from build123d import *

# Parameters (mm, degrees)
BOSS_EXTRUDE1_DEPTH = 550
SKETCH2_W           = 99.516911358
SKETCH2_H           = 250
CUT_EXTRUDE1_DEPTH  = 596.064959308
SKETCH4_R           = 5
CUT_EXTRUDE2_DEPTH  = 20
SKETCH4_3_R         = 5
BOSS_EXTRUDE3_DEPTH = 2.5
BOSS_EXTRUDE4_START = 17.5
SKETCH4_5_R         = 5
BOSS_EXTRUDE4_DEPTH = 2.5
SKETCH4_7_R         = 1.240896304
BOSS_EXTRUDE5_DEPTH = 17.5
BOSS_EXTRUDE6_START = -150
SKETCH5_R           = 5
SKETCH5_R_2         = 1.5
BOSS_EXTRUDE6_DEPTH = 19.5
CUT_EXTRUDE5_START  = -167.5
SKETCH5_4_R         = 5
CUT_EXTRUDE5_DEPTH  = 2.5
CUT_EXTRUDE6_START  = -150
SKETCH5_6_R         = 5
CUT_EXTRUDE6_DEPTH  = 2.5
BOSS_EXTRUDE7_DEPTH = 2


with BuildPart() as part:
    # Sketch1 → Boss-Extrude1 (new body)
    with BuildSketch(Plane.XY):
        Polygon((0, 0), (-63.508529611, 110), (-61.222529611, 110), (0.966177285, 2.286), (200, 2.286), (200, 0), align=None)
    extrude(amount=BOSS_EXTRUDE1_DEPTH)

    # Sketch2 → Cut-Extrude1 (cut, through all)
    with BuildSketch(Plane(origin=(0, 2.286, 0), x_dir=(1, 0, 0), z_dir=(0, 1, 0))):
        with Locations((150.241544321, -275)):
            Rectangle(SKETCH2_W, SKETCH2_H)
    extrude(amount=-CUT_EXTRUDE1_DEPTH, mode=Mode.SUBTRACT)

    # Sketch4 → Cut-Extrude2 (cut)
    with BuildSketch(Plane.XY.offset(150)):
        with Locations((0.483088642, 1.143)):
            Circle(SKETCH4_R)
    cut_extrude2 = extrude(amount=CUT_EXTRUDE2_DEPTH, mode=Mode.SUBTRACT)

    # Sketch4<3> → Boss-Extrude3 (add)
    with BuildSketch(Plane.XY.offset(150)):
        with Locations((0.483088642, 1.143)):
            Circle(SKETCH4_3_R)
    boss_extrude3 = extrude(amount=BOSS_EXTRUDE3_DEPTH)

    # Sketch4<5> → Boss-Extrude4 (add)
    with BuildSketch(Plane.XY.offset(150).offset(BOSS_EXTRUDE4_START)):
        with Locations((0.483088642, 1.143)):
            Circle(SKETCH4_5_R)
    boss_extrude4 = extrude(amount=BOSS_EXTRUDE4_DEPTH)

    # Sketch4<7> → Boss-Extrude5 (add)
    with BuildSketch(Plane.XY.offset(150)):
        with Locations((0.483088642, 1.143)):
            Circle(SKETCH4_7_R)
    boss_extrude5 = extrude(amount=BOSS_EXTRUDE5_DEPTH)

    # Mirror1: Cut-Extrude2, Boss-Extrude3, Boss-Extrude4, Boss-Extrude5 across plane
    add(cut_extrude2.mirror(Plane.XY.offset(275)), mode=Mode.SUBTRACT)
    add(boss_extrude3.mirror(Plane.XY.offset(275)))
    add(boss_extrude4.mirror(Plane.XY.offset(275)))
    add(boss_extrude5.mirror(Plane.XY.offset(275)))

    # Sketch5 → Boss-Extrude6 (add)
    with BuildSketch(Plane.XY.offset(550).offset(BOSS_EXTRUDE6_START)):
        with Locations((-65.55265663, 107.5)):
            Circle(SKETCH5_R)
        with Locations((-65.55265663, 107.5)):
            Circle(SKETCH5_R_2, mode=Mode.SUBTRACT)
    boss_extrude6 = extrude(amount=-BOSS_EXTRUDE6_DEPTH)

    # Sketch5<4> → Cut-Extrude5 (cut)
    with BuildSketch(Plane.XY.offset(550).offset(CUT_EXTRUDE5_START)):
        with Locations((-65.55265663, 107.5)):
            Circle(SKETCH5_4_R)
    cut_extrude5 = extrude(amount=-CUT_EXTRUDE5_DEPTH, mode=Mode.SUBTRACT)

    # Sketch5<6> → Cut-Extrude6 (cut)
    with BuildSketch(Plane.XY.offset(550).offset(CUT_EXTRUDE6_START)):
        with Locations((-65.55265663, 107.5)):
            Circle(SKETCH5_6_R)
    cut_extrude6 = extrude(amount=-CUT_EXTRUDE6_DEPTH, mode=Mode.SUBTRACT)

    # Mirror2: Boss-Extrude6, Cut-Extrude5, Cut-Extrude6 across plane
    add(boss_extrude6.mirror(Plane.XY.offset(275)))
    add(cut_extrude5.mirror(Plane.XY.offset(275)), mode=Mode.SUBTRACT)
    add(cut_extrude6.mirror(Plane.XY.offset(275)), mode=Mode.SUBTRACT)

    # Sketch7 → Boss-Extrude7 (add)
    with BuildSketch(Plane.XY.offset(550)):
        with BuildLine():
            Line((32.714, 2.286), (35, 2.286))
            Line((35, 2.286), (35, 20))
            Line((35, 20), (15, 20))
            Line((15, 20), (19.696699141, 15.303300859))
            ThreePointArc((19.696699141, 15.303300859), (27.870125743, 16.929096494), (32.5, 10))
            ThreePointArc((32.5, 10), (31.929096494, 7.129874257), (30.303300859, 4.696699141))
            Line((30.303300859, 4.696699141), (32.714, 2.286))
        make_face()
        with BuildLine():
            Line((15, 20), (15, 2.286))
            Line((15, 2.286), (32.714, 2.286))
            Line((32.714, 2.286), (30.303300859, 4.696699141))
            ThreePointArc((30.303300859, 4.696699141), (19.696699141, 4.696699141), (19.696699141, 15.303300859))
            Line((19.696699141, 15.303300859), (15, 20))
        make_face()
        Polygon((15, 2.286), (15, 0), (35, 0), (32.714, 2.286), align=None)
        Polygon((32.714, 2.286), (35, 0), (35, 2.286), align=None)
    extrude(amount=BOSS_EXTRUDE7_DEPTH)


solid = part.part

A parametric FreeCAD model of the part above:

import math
import FreeCAD as App
import Part
import Sketcher
Q = App.Units.Quantity


def add_polygon(sketch, points):
    """Adds a closed chain of lines whose ends are joined by coincident constraints."""
    first, n = sketch.GeometryCount, len(points)
    for a, b in zip(points, points[1:] + points[:1]):
        sketch.addGeometry(Part.LineSegment(App.Vector(*a, 0), App.Vector(*b, 0)), False)
    for i in range(n):
        sketch.addConstraint(Sketcher.Constraint("Coincident", first + i, 2, first + (i + 1) % n, 1))

doc = App.newDocument("Part")
body = doc.addObject("PartDesign::Body", "Body")

# Sketch on XY plane
sketch1 = doc.addObject("Sketcher::SketchObject", "Sketch")
body.addObject(sketch1)
sketch1.AttachmentSupport = (doc.XY_Plane, [""])
sketch1.MapMode = "FlatFace"
add_polygon(sketch1, [(-63.5, 110), (0, 0), (200, 0), (200, 2.3), (1, 2.3), (-61.2, 110)])  # lines 0-5
sketch1.addConstraint([
    Sketcher.Constraint("Horizontal", 1),
    Sketcher.Constraint("Vertical", 2),
    Sketcher.Constraint("Horizontal", 3),
    Sketcher.Constraint("Horizontal", 5),
    Sketcher.Constraint("Coincident", 0, 2, -1, 1),
    Sketcher.Constraint("Parallel", 0, 4),
    Sketcher.Constraint("Equal", 5, 2),
    Sketcher.Constraint("DistanceX", 1, 1, 1, 2, 200.0),
    Sketcher.Constraint("Angle", 0, Q("-60 deg")),
    Sketcher.Constraint("DistanceY", -1, 1, 4, 2, 110.0),
    Sketcher.Constraint("DistanceX", 5, 2, 5, 1, 2.286),
])
pad1 = doc.addObject("PartDesign::Pad", "Pad")
body.addObject(pad1)
pad1.Profile = sketch1
pad1.Length = 550

# Sketch on XZ plane
sketch2 = doc.addObject("Sketcher::SketchObject", "Sketch001")
body.addObject(sketch2)
sketch2.AttachmentSupport = (doc.XZ_Plane, [""])
sketch2.MapMode = "FlatFace"
sketch2.AttachmentOffset = App.Placement(App.Vector(0, 0, -2.286), App.Rotation())
add_polygon(sketch2, [(100, 150), (100, 400), (200, 400), (200, 150)])  # lines 0-3
sketch2.addConstraint([
    Sketcher.Constraint("Vertical", 0),
    Sketcher.Constraint("Horizontal", 1),
    Sketcher.Constraint("Vertical", 2),
    Sketcher.Constraint("Horizontal", 3),
    Sketcher.Constraint("DistanceY", 0, 1, 0, 2, 250.0),
    Sketcher.Constraint("DistanceY", -1, 1, 0, 2, 400.0),
    Sketcher.Constraint("DistanceX", -1, 1, 1, 2, 200.0),
    Sketcher.Constraint("DistanceX", 1, 1, 1, 2, 99.516911),
])
pocket1 = doc.addObject("PartDesign::Pocket", "Pocket")
body.addObject(pocket1)
pocket1.Profile = sketch2
pocket1.Type = "ThroughAll"
pocket1.Reversed = True

# Sketch on XY plane
sketch3 = doc.addObject("Sketcher::SketchObject", "Sketch002")
body.addObject(sketch3)
sketch3.AttachmentSupport = (doc.XY_Plane, [""])
sketch3.MapMode = "FlatFace"
sketch3.AttachmentOffset = App.Placement(App.Vector(0, 0, 150), App.Rotation())
sketch3.addGeometry(Part.Circle(App.Vector(0, 1, 0), App.Vector(0, 0, 1), 5), False)
sketch3.addConstraint([
    Sketcher.Constraint("Diameter", 0, 10.0),
    Sketcher.Constraint("DistanceY", -1, 1, 0, 3, 1.143),
    Sketcher.Constraint("DistanceX", -1, 1, 0, 3, 0.483089),
])
pocket2 = doc.addObject("PartDesign::Pocket", "Pocket001")
body.addObject(pocket2)
pocket2.Profile = sketch3
pocket2.Length = 20
pocket2.Reversed = True

# Sketch on XY plane
sketch4 = doc.addObject("Sketcher::SketchObject", "Sketch003")
body.addObject(sketch4)
sketch4.AttachmentSupport = (doc.XY_Plane, [""])
sketch4.MapMode = "FlatFace"
sketch4.AttachmentOffset = App.Placement(App.Vector(0, 0, 150), App.Rotation())
sketch4.addGeometry(Part.Circle(App.Vector(0, 1, 0), App.Vector(0, 0, 1), 5), False)
sketch4.addConstraint([
    Sketcher.Constraint("Diameter", 0, 10.0),
    Sketcher.Constraint("DistanceY", -1, 1, 0, 3, 1.143),
    Sketcher.Constraint("DistanceX", -1, 1, 0, 3, 0.483089),
])
pad2 = doc.addObject("PartDesign::Pad", "Pad001")
body.addObject(pad2)
pad2.Profile = sketch4
pad2.Length = 2.5

# Sketch on XY plane
sketch5 = doc.addObject("Sketcher::SketchObject", "Sketch004")
body.addObject(sketch5)
sketch5.AttachmentSupport = (doc.XY_Plane, [""])
sketch5.MapMode = "FlatFace"
sketch5.AttachmentOffset = App.Placement(App.Vector(0, 0, 167.5), App.Rotation())
sketch5.addGeometry(Part.Circle(App.Vector(0, 1, 0), App.Vector(0, 0, 1), 5), False)
sketch5.addConstraint([
    Sketcher.Constraint("Diameter", 0, 10.0),
    Sketcher.Constraint("DistanceY", -1, 1, 0, 3, 1.143),
    Sketcher.Constraint("DistanceX", -1, 1, 0, 3, 0.483089),
])
pad3 = doc.addObject("PartDesign::Pad", "Pad002")
body.addObject(pad3)
pad3.Profile = sketch5
pad3.Length = 2.5

# Sketch on XY plane
sketch6 = doc.addObject("Sketcher::SketchObject", "Sketch005")
body.addObject(sketch6)
sketch6.AttachmentSupport = (doc.XY_Plane, [""])
sketch6.MapMode = "FlatFace"
sketch6.AttachmentOffset = App.Placement(App.Vector(0, 0, 150), App.Rotation())
sketch6.addGeometry(Part.Circle(App.Vector(0.5, 1.1, 0), App.Vector(0, 0, 1), 1.2), False)
sketch6.addConstraint([
    Sketcher.Constraint("Diameter", 0, 2.481793),
    Sketcher.Constraint("DistanceY", -1, 1, 0, 3, 1.143),
    Sketcher.Constraint("DistanceX", -1, 1, 0, 3, 0.483089),
])
pad4 = doc.addObject("PartDesign::Pad", "Pad003")
body.addObject(pad4)
pad4.Profile = sketch6
pad4.Length = 17.5
doc.recompute()

datumplane = doc.addObject("PartDesign::Plane", "DatumPlane")
body.addObject(datumplane)
datumplane.AttachmentSupport = (doc.XY_Plane, [""])
datumplane.MapMode = "FlatFace"
datumplane.AttachmentOffset = App.Placement(App.Vector(0, 0, 275), App.Rotation())
mirrored = doc.addObject("PartDesign::Mirrored", "Mirrored")
body.addObject(mirrored)
mirrored.Originals = [pocket2, pad2, pad3, pad4]
mirrored.MirrorPlane = (datumplane, [""])
body.Tip = mirrored

# Sketch on XY plane
sketch7 = doc.addObject("Sketcher::SketchObject", "Sketch006")
body.addObject(sketch7)
sketch7.AttachmentSupport = (doc.XY_Plane, [""])
sketch7.MapMode = "FlatFace"
sketch7.AttachmentOffset = App.Placement(App.Vector(0, 0, 400), App.Rotation())
sketch7.addGeometry([
    Part.Circle(App.Vector(-65.6, 107.5, 0), App.Vector(0, 0, 1), 5),
    Part.Circle(App.Vector(-65.6, 107.5, 0), App.Vector(0, 0, 1), 1.5),
], False)
sketch7.addConstraint([
    Sketcher.Constraint("Coincident", 1, 3, 0, 3),
    Sketcher.Constraint("Diameter", 0, 10.0),
    Sketcher.Constraint("Diameter", 1, 3.0),
    Sketcher.Constraint("DistanceY", -1, 1, 0, 3, 107.5),
    Sketcher.Constraint("DistanceX", 0, 3, -1, 1, 65.552657),
])
pad5 = doc.addObject("PartDesign::Pad", "Pad004")
body.addObject(pad5)
pad5.Profile = sketch7
pad5.Length = 19.5
pad5.Reversed = True

# Sketch on XY plane
sketch8 = doc.addObject("Sketcher::SketchObject", "Sketch007")
body.addObject(sketch8)
sketch8.AttachmentSupport = (doc.XY_Plane, [""])
sketch8.MapMode = "FlatFace"
sketch8.AttachmentOffset = App.Placement(App.Vector(0, 0, 382.5), App.Rotation())
sketch8.addGeometry(Part.Circle(App.Vector(-66, 108, 0), App.Vector(0, 0, 1), 5), False)
sketch8.addConstraint([
    Sketcher.Constraint("Diameter", 0, 10.0),
    Sketcher.Constraint("DistanceY", -1, 1, 0, 3, 107.5),
    Sketcher.Constraint("DistanceX", 0, 3, -1, 1, 65.552657),
])
pocket3 = doc.addObject("PartDesign::Pocket", "Pocket002")
body.addObject(pocket3)
pocket3.Profile = sketch8
pocket3.Length = 2.5

# Sketch on XY plane
sketch9 = doc.addObject("Sketcher::SketchObject", "Sketch008")
body.addObject(sketch9)
sketch9.AttachmentSupport = (doc.XY_Plane, [""])
sketch9.MapMode = "FlatFace"
sketch9.AttachmentOffset = App.Placement(App.Vector(0, 0, 400), App.Rotation())
sketch9.addGeometry(Part.Circle(App.Vector(-66, 108, 0), App.Vector(0, 0, 1), 5), False)
sketch9.addConstraint([
    Sketcher.Constraint("Diameter", 0, 10.0),
    Sketcher.Constraint("DistanceY", -1, 1, 0, 3, 107.5),
    Sketcher.Constraint("DistanceX", 0, 3, -1, 1, 65.552657),
])
pocket4 = doc.addObject("PartDesign::Pocket", "Pocket003")
body.addObject(pocket4)
pocket4.Profile = sketch9
pocket4.Length = 2.5
doc.recompute()

datumplane2 = doc.addObject("PartDesign::Plane", "DatumPlane001")
body.addObject(datumplane2)
datumplane2.AttachmentSupport = (doc.XY_Plane, [""])
datumplane2.MapMode = "FlatFace"
datumplane2.AttachmentOffset = App.Placement(App.Vector(0, 0, 275), App.Rotation())
mirrored2 = doc.addObject("PartDesign::Mirrored", "Mirrored001")
body.addObject(mirrored2)
mirrored2.Originals = [pad5, pocket3, pocket4]
mirrored2.MirrorPlane = (datumplane2, [""])
body.Tip = mirrored2

# Sketch on XY plane
sketch10 = doc.addObject("Sketcher::SketchObject", "Sketch009")
body.addObject(sketch10)
sketch10.AttachmentSupport = (doc.XY_Plane, [""])
sketch10.MapMode = "FlatFace"
sketch10.AttachmentOffset = App.Placement(App.Vector(0, 0, 550), App.Rotation())
add_polygon(sketch10, [(35, 20), (15, 20), (15, 0), (35, 0)])  # lines 0-3
sketch10.addGeometry(Part.ArcOfCircle(Part.Circle(App.Vector(25, 10, 0), App.Vector(0, 0, 1), 8), math.radians(0), math.radians(135)), False)  # 4
sketch10.addGeometry(Part.ArcOfCircle(Part.Circle(App.Vector(25, 10, 0), App.Vector(0, 0, 1), 7), math.radians(-45), math.radians(0)), False)  # 5
sketch10.addGeometry(Part.ArcOfCircle(Part.Circle(App.Vector(25, 10, 0), App.Vector(0, 0, 1), 8), math.radians(135), math.radians(315)), False)  # 6
sketch10.addConstraint([
    Sketcher.Constraint("Tangent", 4, 1, 5, 2),
    Sketcher.Constraint("Tangent", 5, 1, 6, 2),
    Sketcher.Constraint("Tangent", 6, 1, 4, 2),
    Sketcher.Constraint("Horizontal", 0),
    Sketcher.Constraint("Vertical", 1),
    Sketcher.Constraint("Horizontal", 2),
    Sketcher.Constraint("Vertical", 3),
    Sketcher.Constraint("PointOnObject", 1, 2, -1),
    Sketcher.Constraint("Horizontal", 6, 3, 4, 1),
    Sketcher.Constraint("Equal", 2, 1),
    Sketcher.Constraint("Radius", 4, 7.5),
    Sketcher.Constraint("DistanceX", 0, 2, 0, 1, 20.0),
    Sketcher.Constraint("DistanceX", -1, 1, 4, 3, 25.0),
    Sketcher.Constraint("DistanceY", -1, 1, 4, 3, 10.0),
    Sketcher.Constraint("DistanceX", -1, 1, 0, 2, 15.0),
    Sketcher.Constraint("DistanceX", -1, 1, 5, 1, 30.303301),
    Sketcher.Constraint("DistanceX", -1, 1, 6, 1, 19.696699),
])
pad6 = doc.addObject("PartDesign::Pad", "Pad005")
body.addObject(pad6)
pad6.Profile = sketch10
pad6.Length = 2

doc.recompute()
